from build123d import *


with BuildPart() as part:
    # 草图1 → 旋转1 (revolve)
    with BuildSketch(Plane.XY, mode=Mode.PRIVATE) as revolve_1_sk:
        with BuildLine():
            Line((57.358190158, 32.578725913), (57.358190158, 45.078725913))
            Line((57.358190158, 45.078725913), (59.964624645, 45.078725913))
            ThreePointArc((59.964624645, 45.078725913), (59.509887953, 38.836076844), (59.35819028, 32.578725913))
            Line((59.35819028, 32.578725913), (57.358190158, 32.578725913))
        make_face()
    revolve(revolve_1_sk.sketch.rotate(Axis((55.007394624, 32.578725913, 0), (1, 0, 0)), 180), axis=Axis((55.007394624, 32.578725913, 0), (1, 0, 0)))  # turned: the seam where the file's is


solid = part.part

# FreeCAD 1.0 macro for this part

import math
import FreeCAD as App
import Part
import Sketcher
from FreeCAD import Vector
Q = App.Units.Quantity

doc = App.newDocument("Part")
params = doc.addObject("Spreadsheet::Sheet", "Params")
for row, (alias, value) in enumerate([
    ("sketch1_width", "2 mm"),
    ("sketch1_radius", "129.13 mm"),
    ("sketch1_height", "12.5 mm"),
    ("revolution_angle", "360 deg"),
], start=1):
    params.set(f"A{row}", alias)
    params.set(f"B{row}", "=" + value)
    params.setAlias(f"B{row}", alias)

body = doc.addObject("PartDesign::Body", "Body")

# Sketch on XY plane
sketch1 = doc.addObject("Sketcher::SketchObject", "Sketch")
body.addObject(sketch1)
sketch1.AttachmentSupport = (doc.XY_Plane, [""])
sketch1.MapMode = "FlatFace"
sketch1.addGeometry(Part.LineSegment(Vector(57.4, 45.1, 0), Vector(57.4, 32.6, 0)), False)
sketch1.addGeometry(Part.LineSegment(Vector(57.4, 32.6, 0), Vector(59.4, 32.6, 0)), False)
sketch1.addGeometry(Part.ArcOfCircle(Part.Circle(Vector(188.5, 32.6, 0), Vector(0, 0, 1), 129.1), math.radians(174.44), math.radians(180)), False)
sketch1.addGeometry(Part.LineSegment(Vector(60, 45.1, 0), Vector(57.4, 45.1, 0)), False)
sketch1.addGeometry(Part.LineSegment(Vector(57.4, 32.6, 0), Vector(188.5, 32.6, 0)), True)  # axis
sketch1.addConstraint(Sketcher.Constraint("Coincident", 0, 2, 1, 1))
sketch1.addConstraint(Sketcher.Constraint("Coincident", 1, 2, 2, 2))
sketch1.addConstraint(Sketcher.Constraint("Coincident", 2, 1, 3, 1))
sketch1.addConstraint(Sketcher.Constraint("Coincident", 3, 2, 0, 1))
sketch1.addConstraint(Sketcher.Constraint("Vertical", 0))
sketch1.addConstraint(Sketcher.Constraint("Horizontal", 1))
sketch1.addConstraint(Sketcher.Constraint("Horizontal", 3))
sketch1.addConstraint(Sketcher.Constraint("Horizontal", 4))
sketch1.addConstraint(Sketcher.Constraint("Coincident", 4, 1, 0, 2))
sketch1.addConstraint(Sketcher.Constraint("Coincident", 4, 2, 2, 3))
sketch1.addConstraint(Sketcher.Constraint("DistanceX", 1, 1, 1, 2, Q("2 mm")))
sketch1.addConstraint(Sketcher.Constraint("Radius", 2, Q("129.13 mm")))
sketch1.addConstraint(Sketcher.Constraint("DistanceY", 0, 2, 0, 1, Q("12.5 mm")))
sketch1.addConstraint(Sketcher.Constraint("DistanceX", -1, 1, 2, 3, Q("188.48819 mm")))
sketch1.addConstraint(Sketcher.Constraint("DistanceY", -1, 1, 2, 3, Q("32.578727 mm")))
sketch1.setExpression("Constraints[10]", "Params.sketch1_width")
sketch1.setExpression("Constraints[11]", "Params.sketch1_radius")
sketch1.setExpression("Constraints[12]", "Params.sketch1_height")
revolution = doc.addObject("PartDesign::Revolution", "Revolution")
body.addObject(revolution)
revolution.Profile = sketch1
revolution.ReferenceAxis = (sketch1, ["Axis0"])
revolution.setExpression("Angle", "Params.revolution_angle")

doc.recompute()
